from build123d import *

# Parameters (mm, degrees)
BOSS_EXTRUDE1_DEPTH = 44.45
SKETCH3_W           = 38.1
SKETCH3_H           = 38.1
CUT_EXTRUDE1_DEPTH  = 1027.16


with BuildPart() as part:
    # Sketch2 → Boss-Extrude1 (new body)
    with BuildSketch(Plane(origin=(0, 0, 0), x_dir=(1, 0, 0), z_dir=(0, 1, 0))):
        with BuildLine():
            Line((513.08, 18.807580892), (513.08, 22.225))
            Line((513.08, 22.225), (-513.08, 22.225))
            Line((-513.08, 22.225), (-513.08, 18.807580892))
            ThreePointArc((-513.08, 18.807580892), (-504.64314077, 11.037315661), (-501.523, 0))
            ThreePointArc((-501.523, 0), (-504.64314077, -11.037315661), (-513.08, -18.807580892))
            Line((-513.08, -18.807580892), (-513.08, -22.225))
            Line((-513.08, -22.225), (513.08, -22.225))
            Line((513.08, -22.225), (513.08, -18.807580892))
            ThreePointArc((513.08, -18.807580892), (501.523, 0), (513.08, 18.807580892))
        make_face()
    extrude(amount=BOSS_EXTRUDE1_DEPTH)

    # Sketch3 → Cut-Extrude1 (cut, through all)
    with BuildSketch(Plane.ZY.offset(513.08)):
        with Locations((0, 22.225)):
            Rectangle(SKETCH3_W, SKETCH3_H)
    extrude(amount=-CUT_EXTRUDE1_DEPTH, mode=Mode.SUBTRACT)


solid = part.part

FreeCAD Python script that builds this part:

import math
import FreeCAD as App
import Part
import Sketcher
Q = App.Units.Quantity


def add_polygon(sketch, points):
    """Adds a closed chain of lines whose ends are joined by coincident constraints."""
    first, n = sketch.GeometryCount, len(points)
    for a, b in zip(points, points[1:] + points[:1]):
        sketch.addGeometry(Part.LineSegment(App.Vector(*a, 0), App.Vector(*b, 0)), False)
    for i in range(n):
        sketch.addConstraint(Sketcher.Constraint("Coincident", first + i, 2, first + (i + 1) % n, 1))

doc = App.newDocument("Part")
body = doc.addObject("PartDesign::Body", "Body")

# Sketch on XZ plane
sketch1 = body.newObject("Sketcher::SketchObject", "Sketch")
sketch1.AttachmentSupport = (doc.getObject("XZ_Plane"), [""])
sketch1.MapMode = "FlatFace"
sketch1.addGeometry(Part.LineSegment(App.Vector(513.08, -18.807581, 0), App.Vector(513.08, -22.225, 0)), False)
sketch1.addGeometry(Part.LineSegment(App.Vector(513.08, -22.225, 0), App.Vector(-513.08, -22.225, 0)), False)
sketch1.addGeometry(Part.LineSegment(App.Vector(-513.08, -22.225, 0), App.Vector(-513.08, -18.807581, 0)), False)
sketch1.addGeometry(Part.ArcOfCircle(Part.Circle(App.Vector(-522.605, 0, 0), App.Vector(0, 0, 1), 21.082), math.radians(-63.140307), math.radians(0)), False)
sketch1.addGeometry(Part.ArcOfCircle(Part.Circle(App.Vector(-522.605, 0, 0), App.Vector(0, 0, 1), 21.082), math.radians(0), math.radians(63.140307)), False)
sketch1.addGeometry(Part.LineSegment(App.Vector(-513.08, 18.807581, 0), App.Vector(-513.08, 22.225, 0)), False)
sketch1.addGeometry(Part.LineSegment(App.Vector(-513.08, 22.225, 0), App.Vector(513.08, 22.225, 0)), False)
sketch1.addGeometry(Part.LineSegment(App.Vector(513.08, 22.225, 0), App.Vector(513.08, 18.807581, 0)), False)
sketch1.addGeometry(Part.ArcOfCircle(Part.Circle(App.Vector(522.605, 0, 0), App.Vector(0, 0, 1), 21.082), math.radians(116.859693), math.radians(243.140307)), False)
sketch1.addConstraint(Sketcher.Constraint("Coincident", 0, 2, 1, 1))
sketch1.addConstraint(Sketcher.Constraint("Coincident", 1, 2, 2, 1))
sketch1.addConstraint(Sketcher.Constraint("Coincident", 2, 2, 3, 1))
sketch1.addConstraint(Sketcher.Constraint("Tangent", 3, 2, 4, 1))
sketch1.addConstraint(Sketcher.Constraint("Coincident", 4, 2, 5, 1))
sketch1.addConstraint(Sketcher.Constraint("Coincident", 5, 2, 6, 1))
sketch1.addConstraint(Sketcher.Constraint("Coincident", 6, 2, 7, 1))
sketch1.addConstraint(Sketcher.Constraint("Coincident", 7, 2, 8, 1))
sketch1.addConstraint(Sketcher.Constraint("Coincident", 8, 2, 0, 1))
sketch1.addConstraint(Sketcher.Constraint("Vertical", 0))
sketch1.addConstraint(Sketcher.Constraint("Horizontal", 1))
sketch1.addConstraint(Sketcher.Constraint("Vertical", 2))
sketch1.addConstraint(Sketcher.Constraint("Vertical", 5))
sketch1.addConstraint(Sketcher.Constraint("Horizontal", 6))
sketch1.addConstraint(Sketcher.Constraint("Vertical", 7))
sketch1.addConstraint(Sketcher.Constraint("Equal", 3, 4))
sketch1.addConstraint(Sketcher.Constraint("Equal", 4, 8))
sketch1.addConstraint(Sketcher.Constraint("Symmetric", 3, 3, 8, 3, -1, 1))
sketch1.addConstraint(Sketcher.Constraint("Symmetric", 0, 2, 5, 2, -1, 1))
sketch1.addConstraint(Sketcher.Constraint("Symmetric", 4, 2, 7, 2, -2))
sketch1.addConstraint(Sketcher.Constraint("PointOnObject", 3, 2, -1))
sketch1.addConstraint(Sketcher.Constraint("Horizontal", 2, 2, 8, 2))
sketch1.addConstraint(Sketcher.Constraint("Radius", 3, Q("0.83 in")))
sketch1.addConstraint(Sketcher.Constraint("DistanceX", 1, 2, 1, 1, Q("40.4 in")))
sketch1.addConstraint(Sketcher.Constraint("DistanceX", 3, 3, 8, 3, Q("41.15 in")))
sketch1.addConstraint(Sketcher.Constraint("DistanceY", 0, 2, 6, 2, Q("1.75 in")))
pad1 = body.newObject("PartDesign::Pad", "Pad")
pad1.Profile = sketch1
pad1.Length = Q("1.75 in")
pad1.Reversed = True

# Sketch on YZ plane
sketch2 = body.newObject("Sketcher::SketchObject", "Sketch001")
sketch2.AttachmentSupport = (doc.getObject("YZ_Plane"), [""])
sketch2.MapMode = "FlatFace"
sketch2.AttachmentOffset = App.Placement(App.Vector(0, 0, -20.2 * 25.4), App.Rotation())
add_polygon(sketch2, [(41.275, -19.05), (3.175, -19.05), (3.175, 19.05), (41.275, 19.05)])  # lines 0-3
sketch2.addConstraint(Sketcher.Constraint("Horizontal", 0))
sketch2.addConstraint(Sketcher.Constraint("Vertical", 1))
sketch2.addConstraint(Sketcher.Constraint("Horizontal", 2))
sketch2.addConstraint(Sketcher.Constraint("Vertical", 3))
sketch2.addConstraint(Sketcher.Constraint("Equal", 2, 1))
sketch2.addConstraint(Sketcher.Constraint("DistanceX", 0, 2, 0, 1, Q("1.5 in")))
sketch2.addConstraint(Sketcher.Constraint("DistanceY", 0, 2, -1, 1, Q("0.75 in")))
sketch2.addConstraint(Sketcher.Constraint("DistanceX", -1, 1, 0, 2, Q("0.125 in")))
pocket1 = body.newObject("PartDesign::Pocket", "Pocket")
pocket1.Profile = sketch2
pocket1.Type = "ThroughAll"
pocket1.Reversed = True

doc.recompute()
